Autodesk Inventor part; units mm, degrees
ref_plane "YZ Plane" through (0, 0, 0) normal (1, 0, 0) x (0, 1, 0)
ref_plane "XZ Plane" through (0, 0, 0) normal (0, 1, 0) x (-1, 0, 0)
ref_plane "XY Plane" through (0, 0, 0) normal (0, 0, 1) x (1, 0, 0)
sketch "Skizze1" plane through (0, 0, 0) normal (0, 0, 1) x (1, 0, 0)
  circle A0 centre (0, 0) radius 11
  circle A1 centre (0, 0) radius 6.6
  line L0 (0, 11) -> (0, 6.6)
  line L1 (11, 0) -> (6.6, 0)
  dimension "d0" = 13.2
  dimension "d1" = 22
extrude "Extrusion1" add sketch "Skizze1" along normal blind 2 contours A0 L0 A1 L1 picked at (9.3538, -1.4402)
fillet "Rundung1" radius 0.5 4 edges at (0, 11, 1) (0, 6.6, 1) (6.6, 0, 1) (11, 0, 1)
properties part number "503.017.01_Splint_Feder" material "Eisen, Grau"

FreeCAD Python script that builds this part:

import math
import FreeCAD as App
import Part
import Sketcher
from FreeCAD import Vector
Q = App.Units.Quantity


def edges_at(feature, points):
    """Names of the edges that pass closest to the given points."""
    edges = feature.Shape.Edges
    near = lambda p: min(range(len(edges)), key=lambda i: edges[i].distToShape(Part.Vertex(*p))[0])
    return sorted({f"Edge{near(p) + 1}" for p in points})

doc = App.newDocument("Part")
body = doc.addObject("PartDesign::Body", "Body")

sketch1 = body.newObject("Sketcher::SketchObject", "Sketch")
sketch1.AttachmentSupport = (doc.getObject("XY_Plane"), [""])
sketch1.MapMode = "FlatFace"
sketch1.addGeometry([
    Part.ArcOfCircle(Part.Circle(Vector(0, 0, 0), Vector(0, 0, 1), 11), math.radians(90), math.radians(360)),
    Part.LineSegment(Vector(11, 0, 0), Vector(6.6, 0, 0)),
    Part.ArcOfCircle(Part.Circle(Vector(0, 0, 0), Vector(0, 0, 1), 6.6), math.radians(90), math.radians(360)),
    Part.LineSegment(Vector(0, 6.6, 0), Vector(0, 11, 0)),
], False)
sketch1.addConstraint([
    Sketcher.Constraint("Coincident", 0, 2, 1, 1),
    Sketcher.Constraint("Coincident", 1, 2, 2, 2),
    Sketcher.Constraint("Coincident", 2, 1, 3, 1),
    Sketcher.Constraint("Coincident", 3, 2, 0, 1),
    Sketcher.Constraint("Horizontal", 1),
    Sketcher.Constraint("Vertical", 3),
    Sketcher.Constraint("Coincident", 0, 3, -1, 1),
    Sketcher.Constraint("Coincident", 2, 3, -1, 1),
    Sketcher.Constraint("PointOnObject", 0, 2, -1),
    Sketcher.Constraint("PointOnObject", 2, 1, -2),
    Sketcher.Constraint("Radius", 0, Q("11 mm")),
    Sketcher.Constraint("Radius", 2, Q("6.6 mm")),
])
pad1 = body.newObject("PartDesign::Pad", "Pad")
pad1.Profile = sketch1
pad1.Length = 2
doc.recompute()

fillet = body.newObject("PartDesign::Fillet", "Fillet")
fillet.Base = (pad1, edges_at(pad1, [
    (0, 11, 1),
    (0, 6.6, 1),
    (6.6, 0, 1),
    (11, 0, 1),
]))
fillet.Radius = 0.5

doc.recompute()
